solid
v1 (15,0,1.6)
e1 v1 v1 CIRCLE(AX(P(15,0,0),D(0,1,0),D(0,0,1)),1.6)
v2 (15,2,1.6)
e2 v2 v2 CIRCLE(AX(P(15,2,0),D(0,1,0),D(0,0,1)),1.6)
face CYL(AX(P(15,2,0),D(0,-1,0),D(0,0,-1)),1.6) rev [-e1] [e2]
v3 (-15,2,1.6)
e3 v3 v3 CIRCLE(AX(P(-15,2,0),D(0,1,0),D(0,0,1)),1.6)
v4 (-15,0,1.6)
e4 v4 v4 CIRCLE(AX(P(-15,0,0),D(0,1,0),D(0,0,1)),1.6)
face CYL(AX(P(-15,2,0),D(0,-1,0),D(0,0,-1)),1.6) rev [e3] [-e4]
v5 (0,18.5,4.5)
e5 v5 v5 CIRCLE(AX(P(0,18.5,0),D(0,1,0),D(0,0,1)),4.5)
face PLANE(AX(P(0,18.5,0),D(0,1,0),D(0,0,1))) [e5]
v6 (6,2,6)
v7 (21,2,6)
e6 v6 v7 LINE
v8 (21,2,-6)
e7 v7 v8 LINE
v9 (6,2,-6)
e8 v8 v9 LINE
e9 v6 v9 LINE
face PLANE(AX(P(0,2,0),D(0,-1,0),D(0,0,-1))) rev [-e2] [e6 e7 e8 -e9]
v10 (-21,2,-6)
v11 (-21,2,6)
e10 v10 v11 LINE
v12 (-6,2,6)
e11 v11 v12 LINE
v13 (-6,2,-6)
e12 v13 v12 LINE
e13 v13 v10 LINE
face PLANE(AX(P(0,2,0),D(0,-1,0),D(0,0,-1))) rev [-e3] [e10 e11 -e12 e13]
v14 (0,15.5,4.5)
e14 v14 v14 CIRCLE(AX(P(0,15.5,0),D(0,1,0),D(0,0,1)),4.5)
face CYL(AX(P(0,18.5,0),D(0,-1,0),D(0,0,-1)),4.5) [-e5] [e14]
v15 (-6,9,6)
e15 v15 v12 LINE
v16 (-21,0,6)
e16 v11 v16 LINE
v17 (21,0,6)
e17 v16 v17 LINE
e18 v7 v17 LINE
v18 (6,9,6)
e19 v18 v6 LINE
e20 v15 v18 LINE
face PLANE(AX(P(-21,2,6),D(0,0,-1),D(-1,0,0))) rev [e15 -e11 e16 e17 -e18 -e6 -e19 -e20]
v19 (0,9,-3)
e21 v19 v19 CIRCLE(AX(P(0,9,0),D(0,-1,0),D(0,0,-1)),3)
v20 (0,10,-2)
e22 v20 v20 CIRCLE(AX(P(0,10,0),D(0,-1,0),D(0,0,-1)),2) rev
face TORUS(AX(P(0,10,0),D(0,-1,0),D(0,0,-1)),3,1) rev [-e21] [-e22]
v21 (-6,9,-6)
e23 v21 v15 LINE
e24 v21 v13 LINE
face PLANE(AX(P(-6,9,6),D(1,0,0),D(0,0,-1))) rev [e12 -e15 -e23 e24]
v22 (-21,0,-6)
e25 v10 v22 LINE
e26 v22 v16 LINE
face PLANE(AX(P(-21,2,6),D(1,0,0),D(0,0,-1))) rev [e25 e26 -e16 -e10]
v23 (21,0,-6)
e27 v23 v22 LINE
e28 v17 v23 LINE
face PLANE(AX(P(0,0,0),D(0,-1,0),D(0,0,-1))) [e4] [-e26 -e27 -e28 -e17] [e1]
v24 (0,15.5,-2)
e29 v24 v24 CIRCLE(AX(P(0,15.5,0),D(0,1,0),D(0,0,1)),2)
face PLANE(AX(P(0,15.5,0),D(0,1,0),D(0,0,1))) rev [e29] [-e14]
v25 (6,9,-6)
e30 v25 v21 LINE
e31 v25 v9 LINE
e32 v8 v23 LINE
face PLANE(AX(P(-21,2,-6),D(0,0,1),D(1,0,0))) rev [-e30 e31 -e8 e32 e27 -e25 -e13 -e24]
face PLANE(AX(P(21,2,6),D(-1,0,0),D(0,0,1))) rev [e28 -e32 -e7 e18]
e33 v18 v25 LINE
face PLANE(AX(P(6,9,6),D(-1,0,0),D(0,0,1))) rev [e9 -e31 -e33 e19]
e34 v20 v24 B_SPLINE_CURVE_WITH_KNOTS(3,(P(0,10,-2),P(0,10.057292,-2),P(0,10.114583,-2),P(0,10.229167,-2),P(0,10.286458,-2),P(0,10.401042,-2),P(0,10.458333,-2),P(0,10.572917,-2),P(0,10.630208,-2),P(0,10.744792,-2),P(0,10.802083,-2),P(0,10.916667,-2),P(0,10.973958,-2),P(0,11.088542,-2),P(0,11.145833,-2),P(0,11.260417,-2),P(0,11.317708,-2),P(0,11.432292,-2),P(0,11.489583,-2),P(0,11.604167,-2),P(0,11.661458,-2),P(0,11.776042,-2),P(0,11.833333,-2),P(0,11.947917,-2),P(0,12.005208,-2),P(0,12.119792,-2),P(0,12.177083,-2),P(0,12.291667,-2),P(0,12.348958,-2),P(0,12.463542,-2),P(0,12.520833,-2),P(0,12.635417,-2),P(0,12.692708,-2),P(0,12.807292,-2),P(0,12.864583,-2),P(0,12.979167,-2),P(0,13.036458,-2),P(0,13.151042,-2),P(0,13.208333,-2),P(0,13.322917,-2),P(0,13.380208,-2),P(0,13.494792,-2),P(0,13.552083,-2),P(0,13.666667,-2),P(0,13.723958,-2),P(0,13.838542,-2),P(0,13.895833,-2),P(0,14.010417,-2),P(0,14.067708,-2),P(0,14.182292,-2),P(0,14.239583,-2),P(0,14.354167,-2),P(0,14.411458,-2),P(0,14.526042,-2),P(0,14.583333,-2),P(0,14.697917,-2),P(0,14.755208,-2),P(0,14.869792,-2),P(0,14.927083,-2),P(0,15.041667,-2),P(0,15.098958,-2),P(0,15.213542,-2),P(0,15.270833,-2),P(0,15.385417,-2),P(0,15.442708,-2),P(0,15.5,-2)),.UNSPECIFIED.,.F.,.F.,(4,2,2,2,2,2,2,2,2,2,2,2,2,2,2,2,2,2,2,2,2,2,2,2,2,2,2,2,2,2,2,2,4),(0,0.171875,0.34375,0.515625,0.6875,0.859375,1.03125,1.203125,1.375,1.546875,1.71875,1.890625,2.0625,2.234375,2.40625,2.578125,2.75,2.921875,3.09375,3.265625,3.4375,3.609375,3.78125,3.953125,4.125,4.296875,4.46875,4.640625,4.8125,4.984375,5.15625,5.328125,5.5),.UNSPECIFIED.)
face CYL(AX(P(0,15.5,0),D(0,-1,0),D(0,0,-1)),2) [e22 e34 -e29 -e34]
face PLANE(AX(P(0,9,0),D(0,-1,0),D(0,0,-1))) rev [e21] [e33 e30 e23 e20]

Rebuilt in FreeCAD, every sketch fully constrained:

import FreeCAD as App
import Part
import Sketcher
from FreeCAD import Vector
Q = App.Units.Quantity


def edges_at(feature, points):
    """Names of the edges that pass closest to the given points."""
    edges = feature.Shape.Edges
    near = lambda p: min(range(len(edges)), key=lambda i: edges[i].distToShape(Part.Vertex(*p))[0])
    return sorted({f"Edge{near(p) + 1}" for p in points})


def add_polygon(sketch, points):
    """Adds a closed chain of lines whose ends are joined by coincident constraints."""
    first, n = sketch.GeometryCount, len(points)
    for a, b in zip(points, points[1:] + points[:1]):
        sketch.addGeometry(Part.LineSegment(App.Vector(*a, 0), App.Vector(*b, 0)), False)
    for i in range(n):
        sketch.addConstraint(Sketcher.Constraint("Coincident", first + i, 2, first + (i + 1) % n, 1))

doc = App.newDocument("Part")
body = doc.addObject("PartDesign::Body", "Body")

# Sketch on XZ plane
sketch1 = body.newObject("Sketcher::SketchObject", "Sketch")
sketch1.AttachmentSupport = (doc.getObject("XZ_Plane"), [""])
sketch1.MapMode = "FlatFace"
add_polygon(sketch1, [(-21, -6), (-21, 6), (21, 6), (21, -6)])  # lines 0-3
sketch1.addGeometry(Part.Circle(Vector(-15, 0, 0), Vector(0, 0, 1), 1.6), False)  # 4
sketch1.addGeometry(Part.Circle(Vector(15, 0, 0), Vector(0, 0, 1), 1.6), False)  # 5
sketch1.addConstraint([
    Sketcher.Constraint("Vertical", 0),
    Sketcher.Constraint("Horizontal", 1),
    Sketcher.Constraint("Vertical", 2),
    Sketcher.Constraint("Horizontal", 3),
    Sketcher.Constraint("Equal", 4, 5),
    Sketcher.Constraint("Symmetric", 4, 3, 5, 3, -1, 1),
    Sketcher.Constraint("Symmetric", 0, 2, 2, 2, -1, 1),
    Sketcher.Constraint("PointOnObject", 4, 3, -1),
    Sketcher.Constraint("Diameter", 4, Q("3.2 mm")),
    Sketcher.Constraint("DistanceX", 1, 1, 1, 2, Q("42 mm")),
    Sketcher.Constraint("DistanceY", 0, 1, 0, 2, Q("12 mm")),
    Sketcher.Constraint("DistanceX", 4, 3, -1, 1, Q("15 mm")),
])
pad1 = body.newObject("PartDesign::Pad", "Pad")
pad1.Profile = sketch1
pad1.Length = 2
pad1.Reversed = True

# Sketch on XZ plane
sketch2 = body.newObject("Sketcher::SketchObject", "Sketch001")
sketch2.AttachmentSupport = (doc.getObject("XZ_Plane"), [""])
sketch2.MapMode = "FlatFace"
sketch2.AttachmentOffset = App.Placement(Vector(0, 0, -2), App.Rotation())
add_polygon(sketch2, [(-6, -6), (-6, 6), (6, 6), (6, -6)])  # lines 0-3
sketch2.addConstraint([
    Sketcher.Constraint("Vertical", 0),
    Sketcher.Constraint("Horizontal", 1),
    Sketcher.Constraint("Vertical", 2),
    Sketcher.Constraint("Horizontal", 3),
    Sketcher.Constraint("Symmetric", 0, 2, 2, 2, -1, 1),
    Sketcher.Constraint("Equal", 3, 0),
    Sketcher.Constraint("DistanceX", 1, 1, 1, 2, Q("12 mm")),
])
pad2 = body.newObject("PartDesign::Pad", "Pad001")
pad2.Profile = sketch2
pad2.Length = 7
pad2.Reversed = True

# Sketch on XZ plane
sketch3 = body.newObject("Sketcher::SketchObject", "Sketch002")
sketch3.AttachmentSupport = (doc.getObject("XZ_Plane"), [""])
sketch3.MapMode = "FlatFace"
sketch3.AttachmentOffset = App.Placement(Vector(0, 0, -9), App.Rotation())
sketch3.addGeometry(Part.Circle(Vector(0, 0, 0), Vector(0, 0, 1), 2), False)
sketch3.addConstraint([
    Sketcher.Constraint("Coincident", 0, 3, -1, 1),
    Sketcher.Constraint("Diameter", 0, Q("4 mm")),
])
pad3 = body.newObject("PartDesign::Pad", "Pad002")
pad3.Profile = sketch3
pad3.Length = 6.5
pad3.Reversed = True

# Sketch on XZ plane
sketch4 = body.newObject("Sketcher::SketchObject", "Sketch003")
sketch4.AttachmentSupport = (doc.getObject("XZ_Plane"), [""])
sketch4.MapMode = "FlatFace"
sketch4.AttachmentOffset = App.Placement(Vector(0, 0, -15.5), App.Rotation())
sketch4.addGeometry(Part.Circle(Vector(0, 0, 0), Vector(0, 0, 1), 4.5), False)
sketch4.addConstraint([
    Sketcher.Constraint("Coincident", 0, 3, -1, 1),
    Sketcher.Constraint("Diameter", 0, Q("9 mm")),
])
pad4 = body.newObject("PartDesign::Pad", "Pad003")
pad4.Profile = sketch4
pad4.Length = 3
pad4.Reversed = True
doc.recompute()

fillet = body.newObject("PartDesign::Fillet", "Fillet")
fillet.Base = (pad4, edges_at(pad4, [(0, 9, 2)]))
fillet.Radius = 1

doc.recompute()
